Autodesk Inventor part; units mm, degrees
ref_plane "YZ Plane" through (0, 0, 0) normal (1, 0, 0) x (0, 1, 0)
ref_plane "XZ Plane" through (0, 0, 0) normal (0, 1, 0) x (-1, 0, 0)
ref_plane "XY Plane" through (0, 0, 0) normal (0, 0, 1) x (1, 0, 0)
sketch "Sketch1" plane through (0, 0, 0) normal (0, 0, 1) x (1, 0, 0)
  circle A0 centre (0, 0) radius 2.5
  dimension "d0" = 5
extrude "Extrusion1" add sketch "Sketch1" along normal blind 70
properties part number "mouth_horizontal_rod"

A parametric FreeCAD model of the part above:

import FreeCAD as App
import Part
import Sketcher

doc = App.newDocument("Part")
params = doc.addObject("Spreadsheet::Sheet", "Params")
for row, (alias, value) in enumerate([
    ("sketch1_diameter", "5 mm"),
    ("pad1_length", "70 mm"),
], start=1):
    params.set(f"A{row}", alias)
    params.set(f"B{row}", "=" + value)
    params.setAlias(f"B{row}", alias)

body = doc.addObject("PartDesign::Body", "Body")

# Sketch on XY plane
sketch1 = body.newObject("Sketcher::SketchObject", "Sketch")
sketch1.AttachmentSupport = (doc.getObject("XY_Plane"), [""])
sketch1.MapMode = "FlatFace"
sketch1.addGeometry(Part.Circle(App.Vector(0, 0, 0), App.Vector(0, 0, 1), 2.5), False)
sketch1.addConstraint([
    Sketcher.Constraint("Coincident", 0, 3, -1, 1),
    Sketcher.Constraint("Diameter", 0, 5.0),
])
sketch1.setExpression("Constraints[1]", "Params.sketch1_diameter")
pad1 = body.newObject("PartDesign::Pad", "Pad")
pad1.Profile = sketch1
pad1.setExpression("Length", "Params.pad1_length")

doc.recompute()
